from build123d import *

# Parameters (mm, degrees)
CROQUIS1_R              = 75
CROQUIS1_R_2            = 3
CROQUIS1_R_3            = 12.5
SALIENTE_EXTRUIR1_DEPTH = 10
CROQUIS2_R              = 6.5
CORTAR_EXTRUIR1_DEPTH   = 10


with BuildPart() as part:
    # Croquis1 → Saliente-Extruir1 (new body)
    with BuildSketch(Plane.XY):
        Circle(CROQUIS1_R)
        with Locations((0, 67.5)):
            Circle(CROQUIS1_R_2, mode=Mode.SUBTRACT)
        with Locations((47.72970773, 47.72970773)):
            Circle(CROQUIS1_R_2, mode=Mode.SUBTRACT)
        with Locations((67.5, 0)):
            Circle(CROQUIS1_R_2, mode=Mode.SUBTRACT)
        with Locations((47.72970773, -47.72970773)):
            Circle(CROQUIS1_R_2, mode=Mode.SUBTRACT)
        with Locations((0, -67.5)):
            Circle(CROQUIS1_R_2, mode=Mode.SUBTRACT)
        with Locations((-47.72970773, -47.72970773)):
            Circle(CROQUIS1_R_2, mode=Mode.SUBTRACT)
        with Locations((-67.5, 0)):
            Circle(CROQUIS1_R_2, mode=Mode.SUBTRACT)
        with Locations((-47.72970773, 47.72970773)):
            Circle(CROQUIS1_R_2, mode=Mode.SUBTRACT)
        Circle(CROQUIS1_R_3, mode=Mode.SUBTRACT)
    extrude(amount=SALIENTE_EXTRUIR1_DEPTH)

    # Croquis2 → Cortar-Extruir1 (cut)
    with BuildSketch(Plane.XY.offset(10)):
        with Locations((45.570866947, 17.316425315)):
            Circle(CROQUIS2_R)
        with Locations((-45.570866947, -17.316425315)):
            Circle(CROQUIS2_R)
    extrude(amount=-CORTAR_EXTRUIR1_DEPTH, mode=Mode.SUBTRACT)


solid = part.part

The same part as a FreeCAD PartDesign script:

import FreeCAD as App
import Part
import Sketcher
from FreeCAD import Vector
Q = App.Units.Quantity

doc = App.newDocument("Part")
params = doc.addObject("Spreadsheet::Sheet", "Params")
for row, (alias, value) in enumerate([
    ("sketch1_diameter", "150 mm"),
    ("sketch1_diameter2", "6 mm"),
    ("sketch1_diameter3", "25 mm"),
    ("pad1_length", "10 mm"),
    ("sketch2_diameter", "13 mm"),
    ("pocket1_length", "10 mm"),
], start=1):
    params.set(f"A{row}", alias)
    params.set(f"B{row}", "=" + value)
    params.setAlias(f"B{row}", alias)

body = doc.addObject("PartDesign::Body", "Body")

sketch1 = body.newObject("Sketcher::SketchObject", "Sketch")
sketch1.AttachmentSupport = (doc.getObject("XY_Plane"), [""])
sketch1.MapMode = "FlatFace"
sketch1.addGeometry(Part.Circle(Vector(0, 0, 0), Vector(0, 0, 1), 75), False)
sketch1.addGeometry(Part.Circle(Vector(-47.7, -47.7, 0), Vector(0, 0, 1), 3), False)
sketch1.addGeometry(Part.Circle(Vector(0, -67.5, 0), Vector(0, 0, 1), 3), False)
sketch1.addGeometry(Part.Circle(Vector(47.7, -47.7, 0), Vector(0, 0, 1), 3), False)
sketch1.addGeometry(Part.Circle(Vector(-67.5, 0, 0), Vector(0, 0, 1), 3), False)
sketch1.addGeometry(Part.Circle(Vector(-47.7, 47.7, 0), Vector(0, 0, 1), 3), False)
sketch1.addGeometry(Part.Circle(Vector(0, 0, 0), Vector(0, 0, 1), 12.5), False)
sketch1.addGeometry(Part.Circle(Vector(67.5, 0, 0), Vector(0, 0, 1), 3), False)
sketch1.addGeometry(Part.Circle(Vector(0, 67.5, 0), Vector(0, 0, 1), 3), False)
sketch1.addGeometry(Part.Circle(Vector(47.7, 47.7, 0), Vector(0, 0, 1), 3), False)
sketch1.addConstraint(Sketcher.Constraint("Coincident", 0, 3, -1, 1))
sketch1.addConstraint(Sketcher.Constraint("Coincident", 6, 3, -1, 1))
sketch1.addConstraint(Sketcher.Constraint("Equal", 1, 2))
sketch1.addConstraint(Sketcher.Constraint("Equal", 2, 3))
sketch1.addConstraint(Sketcher.Constraint("Equal", 3, 4))
sketch1.addConstraint(Sketcher.Constraint("Equal", 4, 5))
sketch1.addConstraint(Sketcher.Constraint("Equal", 5, 7))
sketch1.addConstraint(Sketcher.Constraint("Equal", 7, 8))
sketch1.addConstraint(Sketcher.Constraint("Equal", 8, 9))
sketch1.addConstraint(Sketcher.Constraint("Symmetric", 3, 3, 5, 3, -1, 1))
sketch1.addConstraint(Sketcher.Constraint("Symmetric", 4, 3, 7, 3, -1, 1))
sketch1.addConstraint(Sketcher.Constraint("Symmetric", 2, 3, 8, 3, -1, 1))
sketch1.addConstraint(Sketcher.Constraint("Symmetric", 1, 3, 9, 3, -1, 1))
sketch1.addConstraint(Sketcher.Constraint("Symmetric", 1, 3, 3, 3, -2))
sketch1.addConstraint(Sketcher.Constraint("PointOnObject", 2, 3, -2))
sketch1.addConstraint(Sketcher.Constraint("PointOnObject", 4, 3, -1))
sketch1.addConstraint(Sketcher.Constraint("Diameter", 0, Q("150 mm")))
sketch1.addConstraint(Sketcher.Constraint("Diameter", 1, Q("6 mm")))
sketch1.addConstraint(Sketcher.Constraint("Diameter", 6, Q("25 mm")))
sketch1.addConstraint(Sketcher.Constraint("DistanceY", 2, 3, -1, 1, Q("67.5 mm")))
sketch1.addConstraint(Sketcher.Constraint("DistanceX", 4, 3, -1, 1, Q("67.5 mm")))
sketch1.addConstraint(Sketcher.Constraint("DistanceX", 1, 3, -1, 1, Q("47.729708 mm")))
sketch1.addConstraint(Sketcher.Constraint("DistanceY", 1, 3, -1, 1, Q("47.729708 mm")))
sketch1.setExpression("Constraints[16]", "Params.sketch1_diameter")
sketch1.setExpression("Constraints[17]", "Params.sketch1_diameter2")
sketch1.setExpression("Constraints[18]", "Params.sketch1_diameter3")
pad1 = body.newObject("PartDesign::Pad", "Pad")
pad1.Profile = sketch1
pad1.setExpression("Length", "Params.pad1_length")

sketch2 = body.newObject("Sketcher::SketchObject", "Sketch001")
sketch2.AttachmentSupport = (doc.getObject("XY_Plane"), [""])
sketch2.MapMode = "FlatFace"
sketch2.AttachmentOffset = App.Placement(Vector(0, 0, 10), App.Rotation())
sketch2.addGeometry(Part.Circle(Vector(46, 17, 0), Vector(0, 0, 1), 6), False)
sketch2.addGeometry(Part.Circle(Vector(-46, -17, 0), Vector(0, 0, 1), 6), False)
sketch2.addConstraint(Sketcher.Constraint("Equal", 0, 1))
sketch2.addConstraint(Sketcher.Constraint("Symmetric", 0, 3, 1, 3, -1, 1))
sketch2.addConstraint(Sketcher.Constraint("Diameter", 0, Q("13 mm")))
sketch2.addConstraint(Sketcher.Constraint("DistanceY", 1, 3, 0, 3, Q("34.632851 mm")))
sketch2.addConstraint(Sketcher.Constraint("DistanceX", -1, 1, 0, 3, Q("45.570867 mm")))
sketch2.setExpression("Constraints[2]", "Params.sketch2_diameter")
pocket1 = body.newObject("PartDesign::Pocket", "Pocket")
pocket1.Profile = sketch2
pocket1.setExpression("Length", "Params.pocket1_length")

doc.recompute()
